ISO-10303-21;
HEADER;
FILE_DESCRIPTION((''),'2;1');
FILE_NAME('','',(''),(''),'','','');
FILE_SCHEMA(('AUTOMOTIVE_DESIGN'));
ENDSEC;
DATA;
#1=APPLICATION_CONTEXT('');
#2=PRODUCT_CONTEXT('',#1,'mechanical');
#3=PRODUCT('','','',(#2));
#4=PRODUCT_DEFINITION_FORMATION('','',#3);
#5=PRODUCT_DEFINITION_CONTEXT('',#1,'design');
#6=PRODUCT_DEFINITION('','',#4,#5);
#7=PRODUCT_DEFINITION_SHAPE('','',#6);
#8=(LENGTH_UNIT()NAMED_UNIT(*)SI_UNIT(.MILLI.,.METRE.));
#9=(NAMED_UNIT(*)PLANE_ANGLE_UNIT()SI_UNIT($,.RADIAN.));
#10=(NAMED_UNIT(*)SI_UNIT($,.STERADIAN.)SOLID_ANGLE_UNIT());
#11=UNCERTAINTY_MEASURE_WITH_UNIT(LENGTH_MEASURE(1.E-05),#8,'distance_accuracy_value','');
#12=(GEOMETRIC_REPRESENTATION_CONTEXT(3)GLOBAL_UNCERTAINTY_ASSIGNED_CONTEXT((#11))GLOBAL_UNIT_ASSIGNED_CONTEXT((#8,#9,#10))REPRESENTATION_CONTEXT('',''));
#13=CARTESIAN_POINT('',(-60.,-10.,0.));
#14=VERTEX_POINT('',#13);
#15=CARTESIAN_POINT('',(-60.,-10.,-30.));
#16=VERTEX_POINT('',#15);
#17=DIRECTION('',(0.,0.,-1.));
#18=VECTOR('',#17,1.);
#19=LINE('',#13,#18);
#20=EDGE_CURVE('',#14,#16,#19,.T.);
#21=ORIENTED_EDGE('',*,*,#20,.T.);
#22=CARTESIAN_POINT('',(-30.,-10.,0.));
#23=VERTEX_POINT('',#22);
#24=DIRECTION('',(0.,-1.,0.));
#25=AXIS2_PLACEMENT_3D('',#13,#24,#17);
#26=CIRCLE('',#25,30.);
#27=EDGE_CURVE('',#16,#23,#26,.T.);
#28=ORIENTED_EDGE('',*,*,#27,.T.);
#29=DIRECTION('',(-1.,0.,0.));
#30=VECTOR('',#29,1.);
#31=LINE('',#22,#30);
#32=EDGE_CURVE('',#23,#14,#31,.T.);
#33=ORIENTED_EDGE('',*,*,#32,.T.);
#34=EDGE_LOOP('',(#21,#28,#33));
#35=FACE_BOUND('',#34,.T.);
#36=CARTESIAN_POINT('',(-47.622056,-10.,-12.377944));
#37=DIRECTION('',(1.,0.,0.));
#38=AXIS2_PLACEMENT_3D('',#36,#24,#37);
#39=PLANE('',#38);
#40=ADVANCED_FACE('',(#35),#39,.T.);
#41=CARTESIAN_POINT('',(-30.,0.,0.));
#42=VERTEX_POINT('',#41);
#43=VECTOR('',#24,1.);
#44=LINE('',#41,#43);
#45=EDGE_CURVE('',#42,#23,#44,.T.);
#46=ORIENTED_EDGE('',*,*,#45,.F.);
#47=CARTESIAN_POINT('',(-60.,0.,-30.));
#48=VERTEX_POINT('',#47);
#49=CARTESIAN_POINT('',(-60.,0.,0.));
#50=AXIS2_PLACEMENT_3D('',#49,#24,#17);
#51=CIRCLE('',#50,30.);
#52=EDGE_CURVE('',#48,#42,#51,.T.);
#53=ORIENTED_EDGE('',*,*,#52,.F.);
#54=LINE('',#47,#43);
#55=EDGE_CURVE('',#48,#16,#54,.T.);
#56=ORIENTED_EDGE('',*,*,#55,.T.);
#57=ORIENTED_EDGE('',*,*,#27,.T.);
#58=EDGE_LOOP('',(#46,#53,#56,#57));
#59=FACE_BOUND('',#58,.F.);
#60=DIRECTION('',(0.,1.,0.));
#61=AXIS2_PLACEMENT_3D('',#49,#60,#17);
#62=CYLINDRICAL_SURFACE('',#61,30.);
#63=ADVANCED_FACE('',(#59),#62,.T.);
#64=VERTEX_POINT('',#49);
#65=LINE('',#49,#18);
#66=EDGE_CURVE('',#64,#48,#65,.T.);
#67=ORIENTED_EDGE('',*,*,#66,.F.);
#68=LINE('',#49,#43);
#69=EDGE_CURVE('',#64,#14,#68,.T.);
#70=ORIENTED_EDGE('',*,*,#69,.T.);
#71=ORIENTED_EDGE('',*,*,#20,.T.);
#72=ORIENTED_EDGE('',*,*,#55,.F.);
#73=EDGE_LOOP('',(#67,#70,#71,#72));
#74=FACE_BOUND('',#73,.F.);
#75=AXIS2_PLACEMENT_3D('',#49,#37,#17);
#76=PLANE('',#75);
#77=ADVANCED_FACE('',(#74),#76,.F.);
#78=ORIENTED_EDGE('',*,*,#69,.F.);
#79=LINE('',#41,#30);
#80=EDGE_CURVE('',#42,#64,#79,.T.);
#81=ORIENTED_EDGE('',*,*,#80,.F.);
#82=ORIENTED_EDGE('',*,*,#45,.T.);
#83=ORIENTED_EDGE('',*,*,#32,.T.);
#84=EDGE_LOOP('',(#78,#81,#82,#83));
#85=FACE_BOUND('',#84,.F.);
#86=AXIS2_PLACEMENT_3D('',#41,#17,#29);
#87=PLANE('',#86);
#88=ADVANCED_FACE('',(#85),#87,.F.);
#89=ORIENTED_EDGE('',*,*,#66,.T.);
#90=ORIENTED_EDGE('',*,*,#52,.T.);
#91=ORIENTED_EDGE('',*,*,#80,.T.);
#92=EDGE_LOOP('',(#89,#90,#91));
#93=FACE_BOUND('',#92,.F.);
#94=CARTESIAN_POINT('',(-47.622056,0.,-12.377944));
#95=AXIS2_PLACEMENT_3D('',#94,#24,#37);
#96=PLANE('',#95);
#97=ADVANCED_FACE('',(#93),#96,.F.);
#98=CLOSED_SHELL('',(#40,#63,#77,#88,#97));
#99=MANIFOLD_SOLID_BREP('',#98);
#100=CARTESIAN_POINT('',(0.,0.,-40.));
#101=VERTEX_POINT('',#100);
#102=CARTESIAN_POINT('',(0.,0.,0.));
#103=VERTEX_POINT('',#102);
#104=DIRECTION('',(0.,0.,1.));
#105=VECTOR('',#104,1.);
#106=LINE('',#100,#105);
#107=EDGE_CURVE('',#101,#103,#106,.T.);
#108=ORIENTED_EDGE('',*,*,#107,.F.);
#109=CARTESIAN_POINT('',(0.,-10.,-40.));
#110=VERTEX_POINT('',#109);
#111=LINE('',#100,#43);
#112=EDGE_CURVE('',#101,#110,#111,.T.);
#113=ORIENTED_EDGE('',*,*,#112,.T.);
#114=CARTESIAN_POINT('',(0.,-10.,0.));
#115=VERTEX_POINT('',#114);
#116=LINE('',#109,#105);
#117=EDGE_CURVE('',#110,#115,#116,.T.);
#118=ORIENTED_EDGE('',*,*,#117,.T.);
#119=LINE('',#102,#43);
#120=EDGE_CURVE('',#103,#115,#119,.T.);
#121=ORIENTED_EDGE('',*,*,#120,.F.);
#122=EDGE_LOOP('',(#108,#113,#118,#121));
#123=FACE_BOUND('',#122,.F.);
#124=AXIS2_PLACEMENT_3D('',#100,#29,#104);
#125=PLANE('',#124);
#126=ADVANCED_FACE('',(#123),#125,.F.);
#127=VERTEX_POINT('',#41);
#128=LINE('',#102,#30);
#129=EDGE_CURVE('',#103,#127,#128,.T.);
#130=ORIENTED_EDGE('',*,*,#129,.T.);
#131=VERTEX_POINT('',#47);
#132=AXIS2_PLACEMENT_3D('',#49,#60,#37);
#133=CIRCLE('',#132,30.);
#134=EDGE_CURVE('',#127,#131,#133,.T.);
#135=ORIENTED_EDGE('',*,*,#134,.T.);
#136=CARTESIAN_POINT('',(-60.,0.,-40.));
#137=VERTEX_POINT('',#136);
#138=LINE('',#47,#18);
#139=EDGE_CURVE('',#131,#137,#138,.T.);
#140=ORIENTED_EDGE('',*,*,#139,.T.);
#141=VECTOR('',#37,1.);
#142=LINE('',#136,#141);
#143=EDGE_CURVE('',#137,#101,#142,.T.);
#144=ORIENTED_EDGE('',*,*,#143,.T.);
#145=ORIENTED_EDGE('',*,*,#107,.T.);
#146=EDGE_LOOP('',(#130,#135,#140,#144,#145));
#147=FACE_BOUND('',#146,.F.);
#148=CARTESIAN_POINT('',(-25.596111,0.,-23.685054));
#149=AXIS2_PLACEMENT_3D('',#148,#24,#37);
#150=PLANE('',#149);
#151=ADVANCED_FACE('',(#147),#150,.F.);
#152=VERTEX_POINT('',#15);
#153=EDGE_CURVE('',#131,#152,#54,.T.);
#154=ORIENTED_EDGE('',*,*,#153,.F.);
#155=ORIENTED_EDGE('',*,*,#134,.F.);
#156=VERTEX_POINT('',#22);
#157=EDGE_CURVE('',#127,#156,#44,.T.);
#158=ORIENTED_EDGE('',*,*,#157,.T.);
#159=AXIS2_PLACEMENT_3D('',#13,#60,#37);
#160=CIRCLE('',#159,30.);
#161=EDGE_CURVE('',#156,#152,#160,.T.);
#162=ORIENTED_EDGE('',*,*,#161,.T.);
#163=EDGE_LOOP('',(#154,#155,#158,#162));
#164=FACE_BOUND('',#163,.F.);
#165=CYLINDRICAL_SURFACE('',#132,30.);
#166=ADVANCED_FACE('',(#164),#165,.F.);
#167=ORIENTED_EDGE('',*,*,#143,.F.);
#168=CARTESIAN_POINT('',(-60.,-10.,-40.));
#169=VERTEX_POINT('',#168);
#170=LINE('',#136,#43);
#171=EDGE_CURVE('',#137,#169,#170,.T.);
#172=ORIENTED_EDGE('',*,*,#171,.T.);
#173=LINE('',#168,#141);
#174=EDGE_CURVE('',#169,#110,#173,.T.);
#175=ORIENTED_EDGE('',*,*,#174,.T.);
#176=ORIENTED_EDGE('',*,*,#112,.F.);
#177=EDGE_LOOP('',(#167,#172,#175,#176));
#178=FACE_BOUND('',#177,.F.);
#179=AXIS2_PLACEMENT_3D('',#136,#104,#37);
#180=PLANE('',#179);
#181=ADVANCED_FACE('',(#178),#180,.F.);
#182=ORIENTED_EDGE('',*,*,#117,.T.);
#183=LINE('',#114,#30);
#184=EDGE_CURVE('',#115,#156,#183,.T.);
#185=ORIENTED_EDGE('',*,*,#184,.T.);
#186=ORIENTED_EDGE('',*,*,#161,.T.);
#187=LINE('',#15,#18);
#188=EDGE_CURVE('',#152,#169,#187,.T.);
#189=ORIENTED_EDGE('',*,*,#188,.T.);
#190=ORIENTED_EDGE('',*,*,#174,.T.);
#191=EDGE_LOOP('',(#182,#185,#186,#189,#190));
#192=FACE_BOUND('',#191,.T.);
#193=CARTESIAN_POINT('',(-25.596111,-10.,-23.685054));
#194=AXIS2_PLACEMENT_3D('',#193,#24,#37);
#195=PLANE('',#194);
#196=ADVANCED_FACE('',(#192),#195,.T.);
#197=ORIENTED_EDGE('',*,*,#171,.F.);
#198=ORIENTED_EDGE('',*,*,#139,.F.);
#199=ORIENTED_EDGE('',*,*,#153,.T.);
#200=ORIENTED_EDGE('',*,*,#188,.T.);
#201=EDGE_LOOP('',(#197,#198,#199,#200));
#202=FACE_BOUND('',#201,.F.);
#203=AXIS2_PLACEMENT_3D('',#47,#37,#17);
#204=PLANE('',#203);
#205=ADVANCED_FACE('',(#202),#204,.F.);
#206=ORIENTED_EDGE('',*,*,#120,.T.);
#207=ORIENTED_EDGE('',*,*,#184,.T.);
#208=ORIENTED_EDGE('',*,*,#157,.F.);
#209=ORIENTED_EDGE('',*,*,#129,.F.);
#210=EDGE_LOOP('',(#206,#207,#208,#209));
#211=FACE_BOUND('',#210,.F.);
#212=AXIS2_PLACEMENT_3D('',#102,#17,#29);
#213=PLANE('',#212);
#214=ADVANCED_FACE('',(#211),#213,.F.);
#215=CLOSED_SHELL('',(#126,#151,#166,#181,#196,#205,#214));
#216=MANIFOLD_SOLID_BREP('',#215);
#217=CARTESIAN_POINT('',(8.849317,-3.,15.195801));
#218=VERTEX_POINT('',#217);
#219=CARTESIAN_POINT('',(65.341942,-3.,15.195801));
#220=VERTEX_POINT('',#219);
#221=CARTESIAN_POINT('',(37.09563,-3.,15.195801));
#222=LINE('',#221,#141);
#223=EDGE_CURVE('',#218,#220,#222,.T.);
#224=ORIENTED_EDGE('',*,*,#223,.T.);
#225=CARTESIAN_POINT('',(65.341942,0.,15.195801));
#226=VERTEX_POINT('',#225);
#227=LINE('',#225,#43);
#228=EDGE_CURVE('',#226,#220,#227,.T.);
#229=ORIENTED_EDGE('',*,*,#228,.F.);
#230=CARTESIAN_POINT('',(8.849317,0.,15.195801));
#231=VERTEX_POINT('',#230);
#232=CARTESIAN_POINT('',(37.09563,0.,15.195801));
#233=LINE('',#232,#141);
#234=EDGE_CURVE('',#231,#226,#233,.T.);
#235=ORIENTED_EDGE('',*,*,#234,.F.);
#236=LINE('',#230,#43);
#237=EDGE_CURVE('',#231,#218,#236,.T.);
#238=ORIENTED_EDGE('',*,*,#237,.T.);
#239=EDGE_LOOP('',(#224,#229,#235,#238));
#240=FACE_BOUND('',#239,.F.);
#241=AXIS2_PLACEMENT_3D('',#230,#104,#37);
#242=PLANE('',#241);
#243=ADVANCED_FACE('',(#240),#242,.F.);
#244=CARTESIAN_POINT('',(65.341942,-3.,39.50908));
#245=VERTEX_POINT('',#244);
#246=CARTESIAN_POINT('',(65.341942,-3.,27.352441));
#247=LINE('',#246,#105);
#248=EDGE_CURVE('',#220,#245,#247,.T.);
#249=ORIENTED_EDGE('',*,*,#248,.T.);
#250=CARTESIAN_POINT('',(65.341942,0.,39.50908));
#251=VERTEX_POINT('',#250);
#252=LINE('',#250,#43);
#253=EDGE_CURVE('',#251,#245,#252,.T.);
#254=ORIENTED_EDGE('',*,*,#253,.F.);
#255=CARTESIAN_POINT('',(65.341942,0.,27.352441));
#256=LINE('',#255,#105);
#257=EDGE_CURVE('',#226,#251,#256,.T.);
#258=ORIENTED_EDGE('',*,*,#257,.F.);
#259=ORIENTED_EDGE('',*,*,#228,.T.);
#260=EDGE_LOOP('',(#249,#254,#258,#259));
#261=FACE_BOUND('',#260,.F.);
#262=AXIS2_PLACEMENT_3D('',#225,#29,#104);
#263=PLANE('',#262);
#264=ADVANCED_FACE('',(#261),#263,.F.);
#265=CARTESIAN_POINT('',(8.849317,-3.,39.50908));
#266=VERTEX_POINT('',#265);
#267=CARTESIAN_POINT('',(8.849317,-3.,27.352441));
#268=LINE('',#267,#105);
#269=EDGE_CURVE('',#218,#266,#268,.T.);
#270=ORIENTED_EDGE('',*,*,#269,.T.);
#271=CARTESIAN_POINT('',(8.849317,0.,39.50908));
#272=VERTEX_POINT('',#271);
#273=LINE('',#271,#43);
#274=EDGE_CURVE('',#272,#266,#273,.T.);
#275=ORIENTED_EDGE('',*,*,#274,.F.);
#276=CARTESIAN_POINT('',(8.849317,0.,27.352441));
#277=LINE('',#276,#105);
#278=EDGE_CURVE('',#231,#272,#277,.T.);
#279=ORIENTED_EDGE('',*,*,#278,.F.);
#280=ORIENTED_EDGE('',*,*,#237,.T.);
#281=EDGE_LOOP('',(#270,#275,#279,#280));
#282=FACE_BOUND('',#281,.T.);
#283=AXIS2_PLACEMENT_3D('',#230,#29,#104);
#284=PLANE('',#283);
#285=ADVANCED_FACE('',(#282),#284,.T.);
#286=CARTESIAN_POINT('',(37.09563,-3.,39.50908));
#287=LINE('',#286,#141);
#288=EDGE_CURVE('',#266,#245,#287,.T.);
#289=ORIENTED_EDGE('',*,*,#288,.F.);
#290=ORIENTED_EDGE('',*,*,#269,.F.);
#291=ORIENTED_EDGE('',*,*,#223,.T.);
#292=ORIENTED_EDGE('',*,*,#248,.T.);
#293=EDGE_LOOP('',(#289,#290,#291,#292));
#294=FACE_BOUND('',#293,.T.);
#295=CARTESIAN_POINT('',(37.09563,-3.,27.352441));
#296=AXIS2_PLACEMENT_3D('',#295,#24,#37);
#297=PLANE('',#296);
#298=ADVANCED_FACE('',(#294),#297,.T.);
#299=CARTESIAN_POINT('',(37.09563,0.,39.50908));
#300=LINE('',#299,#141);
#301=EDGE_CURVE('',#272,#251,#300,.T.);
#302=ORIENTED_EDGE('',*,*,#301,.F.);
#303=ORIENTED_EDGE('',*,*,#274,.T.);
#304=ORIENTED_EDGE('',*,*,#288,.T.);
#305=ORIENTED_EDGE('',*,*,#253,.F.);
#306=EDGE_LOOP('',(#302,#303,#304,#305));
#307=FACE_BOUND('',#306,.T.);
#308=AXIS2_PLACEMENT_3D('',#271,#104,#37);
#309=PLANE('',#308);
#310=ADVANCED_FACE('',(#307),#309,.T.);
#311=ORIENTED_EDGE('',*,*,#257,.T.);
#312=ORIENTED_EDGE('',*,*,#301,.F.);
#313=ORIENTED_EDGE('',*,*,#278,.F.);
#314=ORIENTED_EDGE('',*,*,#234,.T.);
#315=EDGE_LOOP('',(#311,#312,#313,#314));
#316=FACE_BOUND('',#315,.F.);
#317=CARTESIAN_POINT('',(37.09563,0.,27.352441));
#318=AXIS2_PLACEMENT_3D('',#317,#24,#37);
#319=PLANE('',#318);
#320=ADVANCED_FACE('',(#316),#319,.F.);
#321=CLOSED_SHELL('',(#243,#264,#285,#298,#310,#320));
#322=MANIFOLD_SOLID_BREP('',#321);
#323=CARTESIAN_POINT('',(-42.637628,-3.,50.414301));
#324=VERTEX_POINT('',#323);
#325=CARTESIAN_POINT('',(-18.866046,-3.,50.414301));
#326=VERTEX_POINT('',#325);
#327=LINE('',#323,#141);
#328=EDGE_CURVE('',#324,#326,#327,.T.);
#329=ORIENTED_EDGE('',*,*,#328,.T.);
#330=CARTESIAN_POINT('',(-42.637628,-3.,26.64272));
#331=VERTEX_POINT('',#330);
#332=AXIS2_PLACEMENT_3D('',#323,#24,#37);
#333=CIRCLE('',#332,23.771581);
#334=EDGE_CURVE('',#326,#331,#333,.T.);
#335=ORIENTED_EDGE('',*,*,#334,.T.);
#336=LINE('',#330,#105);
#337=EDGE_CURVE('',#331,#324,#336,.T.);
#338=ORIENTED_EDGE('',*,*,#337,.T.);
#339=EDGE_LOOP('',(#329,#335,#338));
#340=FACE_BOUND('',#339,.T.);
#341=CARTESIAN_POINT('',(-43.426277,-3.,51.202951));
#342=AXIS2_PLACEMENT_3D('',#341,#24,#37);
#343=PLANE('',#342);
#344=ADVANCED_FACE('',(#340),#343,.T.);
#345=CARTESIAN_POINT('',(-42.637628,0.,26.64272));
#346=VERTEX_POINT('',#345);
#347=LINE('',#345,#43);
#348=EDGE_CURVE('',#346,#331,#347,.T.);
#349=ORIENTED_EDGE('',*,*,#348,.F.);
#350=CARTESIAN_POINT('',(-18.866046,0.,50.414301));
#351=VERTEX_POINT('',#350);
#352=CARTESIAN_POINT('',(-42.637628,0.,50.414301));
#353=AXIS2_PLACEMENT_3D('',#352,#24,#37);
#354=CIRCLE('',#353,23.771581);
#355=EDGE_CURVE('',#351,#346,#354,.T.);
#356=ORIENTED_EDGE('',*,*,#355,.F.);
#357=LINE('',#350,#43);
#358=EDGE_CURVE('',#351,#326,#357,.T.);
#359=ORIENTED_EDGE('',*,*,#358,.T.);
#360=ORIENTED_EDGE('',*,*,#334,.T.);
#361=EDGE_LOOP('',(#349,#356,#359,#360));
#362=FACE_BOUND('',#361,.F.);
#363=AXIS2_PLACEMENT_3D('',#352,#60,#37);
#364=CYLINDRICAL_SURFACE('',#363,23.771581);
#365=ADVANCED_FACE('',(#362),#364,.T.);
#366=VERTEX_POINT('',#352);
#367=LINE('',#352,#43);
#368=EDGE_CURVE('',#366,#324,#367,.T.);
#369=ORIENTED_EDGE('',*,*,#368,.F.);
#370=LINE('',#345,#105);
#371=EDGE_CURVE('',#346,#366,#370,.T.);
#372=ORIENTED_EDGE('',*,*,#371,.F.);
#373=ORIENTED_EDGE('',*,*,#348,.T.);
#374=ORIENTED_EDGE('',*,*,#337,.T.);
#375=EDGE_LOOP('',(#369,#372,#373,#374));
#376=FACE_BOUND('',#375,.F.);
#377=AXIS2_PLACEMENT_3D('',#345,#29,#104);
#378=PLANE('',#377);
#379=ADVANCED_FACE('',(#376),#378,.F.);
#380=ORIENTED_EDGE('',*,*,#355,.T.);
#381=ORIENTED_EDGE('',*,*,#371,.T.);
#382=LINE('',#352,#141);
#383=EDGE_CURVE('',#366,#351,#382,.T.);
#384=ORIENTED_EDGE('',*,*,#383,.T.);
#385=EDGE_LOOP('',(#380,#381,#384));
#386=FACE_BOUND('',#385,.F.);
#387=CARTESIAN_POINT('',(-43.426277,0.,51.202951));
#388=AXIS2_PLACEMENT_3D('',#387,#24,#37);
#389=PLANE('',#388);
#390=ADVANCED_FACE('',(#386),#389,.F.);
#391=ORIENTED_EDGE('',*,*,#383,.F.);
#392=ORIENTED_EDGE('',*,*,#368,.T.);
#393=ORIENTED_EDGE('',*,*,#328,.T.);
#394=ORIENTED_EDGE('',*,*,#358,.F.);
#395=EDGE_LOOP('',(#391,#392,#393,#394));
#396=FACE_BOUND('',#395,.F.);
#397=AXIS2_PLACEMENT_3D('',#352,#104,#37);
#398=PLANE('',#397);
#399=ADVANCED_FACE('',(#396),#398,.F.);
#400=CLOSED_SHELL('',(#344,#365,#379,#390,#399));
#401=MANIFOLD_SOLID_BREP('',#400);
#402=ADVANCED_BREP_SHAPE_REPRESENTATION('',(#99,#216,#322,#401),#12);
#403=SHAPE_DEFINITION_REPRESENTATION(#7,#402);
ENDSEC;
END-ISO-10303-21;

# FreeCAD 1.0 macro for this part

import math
import FreeCAD as App
import Part
import Sketcher

V = App.Vector
Q = App.Units.Quantity

doc = App.newDocument("Part")
body = doc.addObject("PartDesign::Body", "Body")

# Sketch on XZ plane
sketch1 = body.newObject("Sketcher::SketchObject", "Sketch")
sketch1.AttachmentSupport = (doc.getObject("XZ_Plane"), [""])
sketch1.MapMode = "FlatFace"
sketch1.addGeometry(Part.LineSegment(V(-42.637628, 50.414301, 0), V(-18.866046, 50.414301, 0)), False)
sketch1.addGeometry(Part.ArcOfCircle(Part.Circle(V(-42.637628, 50.414301, 0), V(0, 0, 1), 23.771581), math.radians(0), math.radians(270)), False)
sketch1.addGeometry(Part.LineSegment(V(-42.637628, 26.64272, 0), V(-42.637628, 50.414301, 0)), False)
sketch1.addConstraint(Sketcher.Constraint("Coincident", 0, 2, 1, 1))
sketch1.addConstraint(Sketcher.Constraint("Coincident", 1, 2, 2, 1))
sketch1.addConstraint(Sketcher.Constraint("Coincident", 2, 2, 0, 1))
sketch1.addConstraint(Sketcher.Constraint("Horizontal", 0))
sketch1.addConstraint(Sketcher.Constraint("Vertical", 2))
sketch1.addConstraint(Sketcher.Constraint("Coincident", 2, 2, 1, 3))
sketch1.addConstraint(Sketcher.Constraint("Radius", 1, Q("23.771581 mm")))
sketch1.addConstraint(Sketcher.Constraint("DistanceY", -1, 1, 1, 3, Q("50.414301 mm")))
sketch1.addConstraint(Sketcher.Constraint("DistanceX", 1, 3, -1, 1, Q("42.637628 mm")))
pad1 = body.newObject("PartDesign::Pad", "Pad")
pad1.Profile = sketch1
pad1.Length = 3
body2 = doc.addObject("PartDesign::Body", "Body001")

# Sketch on XZ plane
sketch2 = body2.newObject("Sketcher::SketchObject", "Sketch001")
sketch2.AttachmentSupport = (doc.getObject("XZ_Plane001"), [""])
sketch2.MapMode = "FlatFace"
sketch2.addGeometry(Part.LineSegment(V(8.849317, 39.50908, 0), V(8.849317, 15.195801, 0)), False)
sketch2.addGeometry(Part.LineSegment(V(8.849317, 15.195801, 0), V(65.341942, 15.195801, 0)), False)
sketch2.addGeometry(Part.LineSegment(V(65.341942, 15.195801, 0), V(65.341942, 39.50908, 0)), False)
sketch2.addGeometry(Part.LineSegment(V(65.341942, 39.50908, 0), V(8.849317, 39.50908, 0)), False)
sketch2.addConstraint(Sketcher.Constraint("Coincident", 0, 2, 1, 1))
sketch2.addConstraint(Sketcher.Constraint("Coincident", 1, 2, 2, 1))
sketch2.addConstraint(Sketcher.Constraint("Coincident", 2, 2, 3, 1))
sketch2.addConstraint(Sketcher.Constraint("Coincident", 3, 2, 0, 1))
sketch2.addConstraint(Sketcher.Constraint("Vertical", 0))
sketch2.addConstraint(Sketcher.Constraint("Horizontal", 1))
sketch2.addConstraint(Sketcher.Constraint("Vertical", 2))
sketch2.addConstraint(Sketcher.Constraint("Horizontal", 3))
sketch2.addConstraint(Sketcher.Constraint("DistanceY", 0, 2, 0, 1, Q("24.313279 mm")))
sketch2.addConstraint(Sketcher.Constraint("DistanceY", -1, 1, 0, 2, Q("15.195801 mm")))
sketch2.addConstraint(Sketcher.Constraint("DistanceX", 1, 1, 1, 2, Q("56.492625 mm")))
sketch2.addConstraint(Sketcher.Constraint("DistanceX", -1, 1, 0, 2, Q("8.849317 mm")))
pad2 = body2.newObject("PartDesign::Pad", "Pad001")
pad2.Profile = sketch2
pad2.Length = 3
body3 = doc.addObject("PartDesign::Body", "Body002")

# Sketch on XZ plane
sketch3 = body3.newObject("Sketcher::SketchObject", "Sketch002")
sketch3.AttachmentSupport = (doc.getObject("XZ_Plane002"), [""])
sketch3.MapMode = "FlatFace"
sketch3.addGeometry(Part.LineSegment(V(-30, 0, 0), V(-60, 0, 0)), False)
sketch3.addGeometry(Part.LineSegment(V(-60, 0, 0), V(-60, -30, 0)), False)
sketch3.addGeometry(Part.ArcOfCircle(Part.Circle(V(-60, 0, 0), V(0, 0, 1), 30), math.radians(-90), math.radians(0)), False)
sketch3.addConstraint(Sketcher.Constraint("Coincident", 0, 2, 1, 1))
sketch3.addConstraint(Sketcher.Constraint("Coincident", 1, 2, 2, 1))
sketch3.addConstraint(Sketcher.Constraint("Coincident", 2, 2, 0, 1))
sketch3.addConstraint(Sketcher.Constraint("Horizontal", 0))
sketch3.addConstraint(Sketcher.Constraint("Vertical", 1))
sketch3.addConstraint(Sketcher.Constraint("Coincident", 0, 2, 2, 3))
sketch3.addConstraint(Sketcher.Constraint("PointOnObject", 2, 3, -1))
sketch3.addConstraint(Sketcher.Constraint("Radius", 2, Q("30 mm")))
sketch3.addConstraint(Sketcher.Constraint("DistanceX", 2, 3, -1, 1, Q("60 mm")))
pad3 = body3.newObject("PartDesign::Pad", "Pad002")
pad3.Profile = sketch3
pad3.Length = 10
body4 = doc.addObject("PartDesign::Body", "Body003")

# Sketch on XZ plane
sketch4 = body4.newObject("Sketcher::SketchObject", "Sketch003")
sketch4.AttachmentSupport = (doc.getObject("XZ_Plane003"), [""])
sketch4.MapMode = "FlatFace"
sketch4.addGeometry(Part.LineSegment(V(0, 0, 0), V(-30, 0, 0)), False)
sketch4.addGeometry(Part.ArcOfCircle(Part.Circle(V(-60, 0, 0), V(0, 0, 1), 30), math.radians(-90), math.radians(0)), False)
sketch4.addGeometry(Part.LineSegment(V(-60, -30, 0), V(-60, -40, 0)), False)
sketch4.addGeometry(Part.LineSegment(V(-60, -40, 0), V(0, -40, 0)), False)
sketch4.addGeometry(Part.LineSegment(V(0, -40, 0), V(0, 0, 0)), False)
sketch4.addConstraint(Sketcher.Constraint("Coincident", 0, 2, 1, 2))
sketch4.addConstraint(Sketcher.Constraint("Coincident", 1, 1, 2, 1))
sketch4.addConstraint(Sketcher.Constraint("Coincident", 2, 2, 3, 1))
sketch4.addConstraint(Sketcher.Constraint("Coincident", 3, 2, 4, 1))
sketch4.addConstraint(Sketcher.Constraint("Coincident", 4, 2, 0, 1))
sketch4.addConstraint(Sketcher.Constraint("Horizontal", 0))
sketch4.addConstraint(Sketcher.Constraint("Vertical", 2))
sketch4.addConstraint(Sketcher.Constraint("Horizontal", 3))
sketch4.addConstraint(Sketcher.Constraint("Vertical", 4))
sketch4.addConstraint(Sketcher.Constraint("Coincident", 4, 2, -1, 1))
sketch4.addConstraint(Sketcher.Constraint("PointOnObject", 1, 3, -1))
sketch4.addConstraint(Sketcher.Constraint("Radius", 1, Q("30 mm")))
sketch4.addConstraint(Sketcher.Constraint("DistanceX", 0, 2, 0, 1, Q("30 mm")))
sketch4.addConstraint(Sketcher.Constraint("DistanceX", 3, 1, 3, 2, Q("60 mm")))
sketch4.addConstraint(Sketcher.Constraint("DistanceY", 2, 2, 2, 1, Q("10 mm")))
pad4 = body4.newObject("PartDesign::Pad", "Pad003")
pad4.Profile = sketch4
pad4.Length = 10

doc.recompute()
